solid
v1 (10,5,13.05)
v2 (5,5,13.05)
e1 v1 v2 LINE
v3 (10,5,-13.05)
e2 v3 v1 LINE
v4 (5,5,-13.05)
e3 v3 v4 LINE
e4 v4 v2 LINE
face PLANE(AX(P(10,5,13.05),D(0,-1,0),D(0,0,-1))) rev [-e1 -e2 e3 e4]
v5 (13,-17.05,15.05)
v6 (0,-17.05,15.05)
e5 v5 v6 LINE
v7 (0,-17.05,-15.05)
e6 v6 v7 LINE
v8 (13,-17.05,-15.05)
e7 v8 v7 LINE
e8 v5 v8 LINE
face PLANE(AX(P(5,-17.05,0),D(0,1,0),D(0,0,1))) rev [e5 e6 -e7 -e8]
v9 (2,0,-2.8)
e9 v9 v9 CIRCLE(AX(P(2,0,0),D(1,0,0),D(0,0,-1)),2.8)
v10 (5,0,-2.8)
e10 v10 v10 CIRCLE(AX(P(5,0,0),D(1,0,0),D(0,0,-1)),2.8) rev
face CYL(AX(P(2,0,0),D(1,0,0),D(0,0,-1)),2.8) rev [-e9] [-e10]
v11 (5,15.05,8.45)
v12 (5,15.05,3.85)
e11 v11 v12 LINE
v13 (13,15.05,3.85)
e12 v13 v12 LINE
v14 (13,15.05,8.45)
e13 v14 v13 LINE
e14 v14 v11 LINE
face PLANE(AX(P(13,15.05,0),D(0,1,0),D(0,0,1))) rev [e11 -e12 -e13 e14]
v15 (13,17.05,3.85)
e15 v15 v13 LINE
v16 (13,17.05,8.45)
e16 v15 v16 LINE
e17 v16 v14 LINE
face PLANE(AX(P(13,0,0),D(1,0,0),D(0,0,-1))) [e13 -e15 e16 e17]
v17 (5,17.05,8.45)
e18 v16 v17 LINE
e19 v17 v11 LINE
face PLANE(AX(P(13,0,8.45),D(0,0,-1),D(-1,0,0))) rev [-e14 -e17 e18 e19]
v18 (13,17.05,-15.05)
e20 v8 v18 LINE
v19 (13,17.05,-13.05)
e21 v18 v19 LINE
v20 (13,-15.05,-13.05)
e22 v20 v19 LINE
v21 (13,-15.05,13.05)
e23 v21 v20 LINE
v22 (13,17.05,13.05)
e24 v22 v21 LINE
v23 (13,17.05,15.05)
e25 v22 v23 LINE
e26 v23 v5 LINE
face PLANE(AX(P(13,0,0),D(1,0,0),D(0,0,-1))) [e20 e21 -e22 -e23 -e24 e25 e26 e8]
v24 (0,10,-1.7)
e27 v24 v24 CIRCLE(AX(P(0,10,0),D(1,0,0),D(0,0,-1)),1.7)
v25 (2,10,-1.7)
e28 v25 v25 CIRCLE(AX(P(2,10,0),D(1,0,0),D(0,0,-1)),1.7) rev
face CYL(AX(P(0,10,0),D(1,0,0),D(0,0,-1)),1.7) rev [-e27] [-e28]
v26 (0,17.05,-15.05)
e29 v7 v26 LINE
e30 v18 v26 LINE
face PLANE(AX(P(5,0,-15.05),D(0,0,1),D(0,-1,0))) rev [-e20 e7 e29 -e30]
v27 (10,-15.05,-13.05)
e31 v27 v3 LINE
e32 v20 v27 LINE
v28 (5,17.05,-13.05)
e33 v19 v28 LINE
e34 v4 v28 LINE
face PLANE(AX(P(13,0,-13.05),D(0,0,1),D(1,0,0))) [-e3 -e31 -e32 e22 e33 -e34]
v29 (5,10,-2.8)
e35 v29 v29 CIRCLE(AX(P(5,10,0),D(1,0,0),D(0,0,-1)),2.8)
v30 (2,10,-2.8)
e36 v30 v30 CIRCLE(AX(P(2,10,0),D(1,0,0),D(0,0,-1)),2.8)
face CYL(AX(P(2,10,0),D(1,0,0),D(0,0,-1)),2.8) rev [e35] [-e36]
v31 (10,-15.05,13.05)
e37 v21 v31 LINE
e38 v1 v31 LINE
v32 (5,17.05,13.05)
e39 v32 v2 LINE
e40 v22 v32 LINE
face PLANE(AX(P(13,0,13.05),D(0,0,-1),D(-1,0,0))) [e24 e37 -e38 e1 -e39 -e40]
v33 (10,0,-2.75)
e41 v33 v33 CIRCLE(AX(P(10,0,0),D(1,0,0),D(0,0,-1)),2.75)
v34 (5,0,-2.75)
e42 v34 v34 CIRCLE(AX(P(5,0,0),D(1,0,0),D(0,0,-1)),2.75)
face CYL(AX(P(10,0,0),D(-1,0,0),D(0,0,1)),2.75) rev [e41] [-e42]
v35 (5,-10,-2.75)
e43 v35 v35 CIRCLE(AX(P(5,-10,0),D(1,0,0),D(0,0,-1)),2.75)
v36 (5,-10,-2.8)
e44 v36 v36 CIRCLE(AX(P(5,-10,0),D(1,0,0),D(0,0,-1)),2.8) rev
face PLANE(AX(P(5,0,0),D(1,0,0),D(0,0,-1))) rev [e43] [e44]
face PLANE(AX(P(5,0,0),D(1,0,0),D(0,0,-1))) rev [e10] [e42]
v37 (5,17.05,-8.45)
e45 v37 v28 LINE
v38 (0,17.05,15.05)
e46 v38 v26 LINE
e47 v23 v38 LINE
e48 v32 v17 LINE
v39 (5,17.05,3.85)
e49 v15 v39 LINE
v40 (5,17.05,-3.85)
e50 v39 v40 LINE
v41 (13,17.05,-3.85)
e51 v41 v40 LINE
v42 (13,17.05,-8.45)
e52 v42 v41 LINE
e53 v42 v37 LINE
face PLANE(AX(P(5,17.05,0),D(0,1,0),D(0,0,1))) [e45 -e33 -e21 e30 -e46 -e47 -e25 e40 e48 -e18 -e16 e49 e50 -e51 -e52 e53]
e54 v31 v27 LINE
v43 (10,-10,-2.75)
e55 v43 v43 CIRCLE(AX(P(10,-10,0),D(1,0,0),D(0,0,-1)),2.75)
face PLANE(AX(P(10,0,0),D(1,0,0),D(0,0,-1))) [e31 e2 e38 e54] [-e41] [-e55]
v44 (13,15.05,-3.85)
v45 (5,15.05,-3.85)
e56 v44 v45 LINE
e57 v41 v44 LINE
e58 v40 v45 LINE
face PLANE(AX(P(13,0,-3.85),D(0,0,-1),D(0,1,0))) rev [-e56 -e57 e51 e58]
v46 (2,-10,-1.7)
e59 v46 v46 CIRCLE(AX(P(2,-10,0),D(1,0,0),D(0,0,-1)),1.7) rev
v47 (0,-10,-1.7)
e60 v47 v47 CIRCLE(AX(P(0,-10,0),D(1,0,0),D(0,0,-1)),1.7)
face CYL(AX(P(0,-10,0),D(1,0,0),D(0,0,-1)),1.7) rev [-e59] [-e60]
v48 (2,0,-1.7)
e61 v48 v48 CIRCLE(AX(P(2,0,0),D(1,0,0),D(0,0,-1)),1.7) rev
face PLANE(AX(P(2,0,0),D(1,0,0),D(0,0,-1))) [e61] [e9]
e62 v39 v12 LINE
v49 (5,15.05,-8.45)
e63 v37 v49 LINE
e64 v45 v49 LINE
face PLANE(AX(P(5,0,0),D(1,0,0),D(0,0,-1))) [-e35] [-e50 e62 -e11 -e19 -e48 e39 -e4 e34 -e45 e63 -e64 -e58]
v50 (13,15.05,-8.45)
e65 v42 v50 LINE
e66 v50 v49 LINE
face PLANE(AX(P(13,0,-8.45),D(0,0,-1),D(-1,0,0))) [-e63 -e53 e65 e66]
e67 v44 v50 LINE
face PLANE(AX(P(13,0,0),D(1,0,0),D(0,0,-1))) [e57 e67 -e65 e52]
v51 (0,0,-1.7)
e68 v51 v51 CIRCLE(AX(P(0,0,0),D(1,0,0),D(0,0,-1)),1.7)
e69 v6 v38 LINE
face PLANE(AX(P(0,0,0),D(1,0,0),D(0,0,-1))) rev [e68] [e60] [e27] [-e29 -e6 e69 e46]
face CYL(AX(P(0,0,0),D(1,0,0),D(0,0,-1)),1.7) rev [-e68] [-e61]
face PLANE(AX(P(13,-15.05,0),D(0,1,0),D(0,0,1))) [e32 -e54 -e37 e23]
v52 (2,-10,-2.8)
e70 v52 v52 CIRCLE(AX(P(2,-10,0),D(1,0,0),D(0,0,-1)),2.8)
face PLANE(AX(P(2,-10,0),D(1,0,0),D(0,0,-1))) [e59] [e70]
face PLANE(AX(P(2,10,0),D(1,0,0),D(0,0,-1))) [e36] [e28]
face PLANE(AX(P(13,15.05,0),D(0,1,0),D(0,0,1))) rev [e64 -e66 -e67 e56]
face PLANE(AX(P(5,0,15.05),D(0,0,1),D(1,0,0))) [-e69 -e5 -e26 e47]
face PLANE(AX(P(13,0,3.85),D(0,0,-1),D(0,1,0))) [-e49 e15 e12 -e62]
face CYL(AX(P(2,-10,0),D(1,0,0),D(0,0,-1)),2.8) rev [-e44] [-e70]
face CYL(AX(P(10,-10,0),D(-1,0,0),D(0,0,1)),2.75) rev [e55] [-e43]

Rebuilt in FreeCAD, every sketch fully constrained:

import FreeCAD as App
import Part
import Sketcher

V = App.Vector


def add_polygon(sketch, points):
    """Adds a closed chain of lines whose ends are joined by coincident constraints."""
    first, n = sketch.GeometryCount, len(points)
    for a, b in zip(points, points[1:] + points[:1]):
        sketch.addGeometry(Part.LineSegment(App.Vector(*a, 0), App.Vector(*b, 0)), False)
    for i in range(n):
        sketch.addConstraint(Sketcher.Constraint("Coincident", first + i, 2, first + (i + 1) % n, 1))

doc = App.newDocument("Part")
params = doc.addObject("Spreadsheet::Sheet", "Params")
for row, (alias, value) in enumerate([
    ("sketch1_width", "34.1 mm"),
    ("sketch1_height", "30.1 mm"),
    ("pad1_length", "5 mm"),
    ("sketch2_width", "2 mm"),
    ("sketch2_width2", "34.1 mm"),
    ("sketch2_width3", "32.1 mm"),
    ("sketch2_height", "26.1 mm"),
    ("sketch2_height2", "4.6 mm"),
    ("pad2_length", "8 mm"),
    ("sketch3_diameter", "3.4 mm"),
    ("sketch4_diameter", "5.6 mm"),
    ("pocket2_length", "3 mm"),
    ("sketch5_diameter", "5.5 mm"),
    ("sketch5_height", "26.1 mm"),
    ("sketch5_width", "20.05 mm"),
    ("pad3_length", "5 mm"),
], start=1):
    params.set(f"A{row}", alias)
    params.set(f"B{row}", "=" + value)
    params.setAlias(f"B{row}", alias)

body = doc.addObject("PartDesign::Body", "Body")

# Sketch on YZ plane
sketch1 = doc.addObject("Sketcher::SketchObject", "Sketch")
body.addObject(sketch1)
sketch1.AttachmentSupport = (doc.YZ_Plane, [""])
sketch1.MapMode = "FlatFace"
add_polygon(sketch1, [(17, 15), (-17, 15), (-17, -15), (17, -15)])  # lines 0-3
sketch1.addConstraint(Sketcher.Constraint("Horizontal", 0))
sketch1.addConstraint(Sketcher.Constraint("Vertical", 1))
sketch1.addConstraint(Sketcher.Constraint("Horizontal", 2))
sketch1.addConstraint(Sketcher.Constraint("Vertical", 3))
sketch1.addConstraint(Sketcher.Constraint("Symmetric", 0, 2, 2, 2, -1, 1))
sketch1.addConstraint(Sketcher.Constraint("DistanceX", 0, 2, 0, 1, 34.1))
sketch1.addConstraint(Sketcher.Constraint("DistanceY", 1, 2, 1, 1, 30.1))
sketch1.setExpression("Constraints[9]", "Params.sketch1_width")
sketch1.setExpression("Constraints[10]", "Params.sketch1_height")
pad1 = doc.addObject("PartDesign::Pad", "Pad")
body.addObject(pad1)
pad1.Profile = sketch1
pad1.setExpression("Length", "Params.pad1_length")

# Sketch on YZ plane
sketch2 = doc.addObject("Sketcher::SketchObject", "Sketch001")
body.addObject(sketch2)
sketch2.AttachmentSupport = (doc.YZ_Plane, [""])
sketch2.MapMode = "FlatFace"
sketch2.AttachmentOffset = App.Placement(V(0, 0, 5), App.Rotation())
add_polygon(sketch2, [(-17.1, -15.1), (17.1, -15.1), (17.1, -13.1), (-15.1, -13.1), (-15.1, 13.1), (17.1, 13.1), (17.1, 15.1), (-17.1, 15.1)])  # lines 0-7
add_polygon(sketch2, [(17.1, -3.9), (15.1, -3.9), (15.1, -8.4), (17.1, -8.4)])  # lines 8-11
add_polygon(sketch2, [(17.1, 8.4), (15.1, 8.4), (15.1, 3.9), (17.1, 3.9)])  # lines 12-15
sketch2.addConstraint(Sketcher.Constraint("Horizontal", 0))
sketch2.addConstraint(Sketcher.Constraint("Vertical", 1))
sketch2.addConstraint(Sketcher.Constraint("Horizontal", 2))
sketch2.addConstraint(Sketcher.Constraint("Vertical", 3))
sketch2.addConstraint(Sketcher.Constraint("Horizontal", 4))
sketch2.addConstraint(Sketcher.Constraint("Vertical", 5))
sketch2.addConstraint(Sketcher.Constraint("Horizontal", 6))
sketch2.addConstraint(Sketcher.Constraint("Vertical", 7))
sketch2.addConstraint(Sketcher.Constraint("Horizontal", 8))
sketch2.addConstraint(Sketcher.Constraint("Vertical", 9))
sketch2.addConstraint(Sketcher.Constraint("Horizontal", 10))
sketch2.addConstraint(Sketcher.Constraint("Vertical", 11))
sketch2.addConstraint(Sketcher.Constraint("Horizontal", 12))
sketch2.addConstraint(Sketcher.Constraint("Vertical", 13))
sketch2.addConstraint(Sketcher.Constraint("Horizontal", 14))
sketch2.addConstraint(Sketcher.Constraint("Vertical", 15))
sketch2.addConstraint(Sketcher.Constraint("Symmetric", 0, 2, 6, 2, -1, 1))
sketch2.addConstraint(Sketcher.Constraint("Symmetric", 1, 2, 4, 2, -1))
sketch2.addConstraint(Sketcher.Constraint("Symmetric", 9, 2, 12, 2, -1))
sketch2.addConstraint(Sketcher.Constraint("Symmetric", 11, 2, 14, 2, -1))
sketch2.addConstraint(Sketcher.Constraint("Vertical", 5, 2, 10, 2))
sketch2.addConstraint(Sketcher.Constraint("Equal", 14, 1))
sketch2.addConstraint(Sketcher.Constraint("DistanceX", 8, 2, 8, 1, 2.0))
sketch2.addConstraint(Sketcher.Constraint("DistanceX", 0, 1, 0, 2, 34.1))
sketch2.addConstraint(Sketcher.Constraint("DistanceX", 2, 2, 2, 1, 32.1))
sketch2.addConstraint(Sketcher.Constraint("DistanceY", 3, 1, 3, 2, 26.1))
sketch2.addConstraint(Sketcher.Constraint("DistanceY", 9, 2, 9, 1, 4.6))
sketch2.addConstraint(Sketcher.Constraint("DistanceY", 1, 2, 8, 2, 9.2))
sketch2.setExpression("Constraints[38]", "Params.sketch2_width")
sketch2.setExpression("Constraints[39]", "Params.sketch2_width2")
sketch2.setExpression("Constraints[40]", "Params.sketch2_width3")
sketch2.setExpression("Constraints[41]", "Params.sketch2_height")
sketch2.setExpression("Constraints[42]", "Params.sketch2_height2")
pad2 = doc.addObject("PartDesign::Pad", "Pad001")
body.addObject(pad2)
pad2.Profile = sketch2
pad2.setExpression("Length", "Params.pad2_length")

# Sketch on YZ plane
sketch3 = doc.addObject("Sketcher::SketchObject", "Sketch002")
body.addObject(sketch3)
sketch3.AttachmentSupport = (doc.YZ_Plane, [""])
sketch3.MapMode = "FlatFace"
sketch3.AttachmentOffset = App.Placement(V(0, 0, 5), App.Rotation())
sketch3.addGeometry(Part.Circle(V(-10, 0, 0), V(0, 0, 1), 1.7), False)
sketch3.addGeometry(Part.Circle(V(0, 0, 0), V(0, 0, 1), 1.7), False)
sketch3.addGeometry(Part.Circle(V(10, 0, 0), V(0, 0, 1), 1.7), False)
sketch3.addConstraint(Sketcher.Constraint("Coincident", 1, 3, -1, 1))
sketch3.addConstraint(Sketcher.Constraint("Equal", 0, 1))
sketch3.addConstraint(Sketcher.Constraint("Equal", 1, 2))
sketch3.addConstraint(Sketcher.Constraint("Symmetric", 0, 3, 2, 3, -1, 1))
sketch3.addConstraint(Sketcher.Constraint("PointOnObject", 0, 3, -1))
sketch3.addConstraint(Sketcher.Constraint("Diameter", 0, 3.4))
sketch3.addConstraint(Sketcher.Constraint("DistanceX", 0, 3, -1, 1, 10.0))
sketch3.setExpression("Constraints[5]", "Params.sketch3_diameter")
pocket1 = doc.addObject("PartDesign::Pocket", "Pocket")
body.addObject(pocket1)
pocket1.Profile = sketch3
pocket1.Type = "ThroughAll"

# Sketch on YZ plane
sketch4 = doc.addObject("Sketcher::SketchObject", "Sketch003")
body.addObject(sketch4)
sketch4.AttachmentSupport = (doc.YZ_Plane, [""])
sketch4.MapMode = "FlatFace"
sketch4.AttachmentOffset = App.Placement(V(0, 0, 5), App.Rotation())
sketch4.addGeometry(Part.Circle(V(-10, 0, 0), V(0, 0, 1), 2.8), False)
sketch4.addGeometry(Part.Circle(V(0, 0, 0), V(0, 0, 1), 2.8), False)
sketch4.addGeometry(Part.Circle(V(10, 0, 0), V(0, 0, 1), 2.8), False)
sketch4.addConstraint(Sketcher.Constraint("Coincident", 1, 3, -1, 1))
sketch4.addConstraint(Sketcher.Constraint("Equal", 0, 1))
sketch4.addConstraint(Sketcher.Constraint("Equal", 1, 2))
sketch4.addConstraint(Sketcher.Constraint("Symmetric", 0, 3, 2, 3, -1, 1))
sketch4.addConstraint(Sketcher.Constraint("PointOnObject", 0, 3, -1))
sketch4.addConstraint(Sketcher.Constraint("Diameter", 0, 5.6))
sketch4.addConstraint(Sketcher.Constraint("DistanceX", 0, 3, -1, 1, 10.0))
sketch4.setExpression("Constraints[5]", "Params.sketch4_diameter")
pocket2 = doc.addObject("PartDesign::Pocket", "Pocket001")
body.addObject(pocket2)
pocket2.Profile = sketch4
pocket2.setExpression("Length", "Params.pocket2_length")

# Sketch on YZ plane
sketch5 = doc.addObject("Sketcher::SketchObject", "Sketch004")
body.addObject(sketch5)
sketch5.AttachmentSupport = (doc.YZ_Plane, [""])
sketch5.MapMode = "FlatFace"
sketch5.AttachmentOffset = App.Placement(V(0, 0, 5), App.Rotation())
add_polygon(sketch5, [(5, 13.1), (-15.1, 13.1), (-15.1, -13.1), (5, -13.1)])  # lines 0-3
sketch5.addGeometry(Part.Circle(V(-10, 0, 0), V(0, 0, 1), 2.8), False)  # 4
sketch5.addGeometry(Part.Circle(V(0, 0, 0), V(0, 0, 1), 2.8), False)  # 5
sketch5.addConstraint(Sketcher.Constraint("Horizontal", 0))
sketch5.addConstraint(Sketcher.Constraint("Vertical", 1))
sketch5.addConstraint(Sketcher.Constraint("Horizontal", 2))
sketch5.addConstraint(Sketcher.Constraint("Vertical", 3))
sketch5.addConstraint(Sketcher.Constraint("Coincident", 5, 3, -1, 1))
sketch5.addConstraint(Sketcher.Constraint("Equal", 4, 5))
sketch5.addConstraint(Sketcher.Constraint("PointOnObject", 4, 3, -1))
sketch5.addConstraint(Sketcher.Constraint("Diameter", 4, 5.5))
sketch5.addConstraint(Sketcher.Constraint("DistanceY", 1, 2, 1, 1, 26.1))
sketch5.addConstraint(Sketcher.Constraint("DistanceX", 4, 3, -1, 1, 10.0))
sketch5.addConstraint(Sketcher.Constraint("DistanceX", -1, 1, 2, 2, 5.0))
sketch5.addConstraint(Sketcher.Constraint("DistanceX", 0, 2, 0, 1, 20.05))
sketch5.addConstraint(Sketcher.Constraint("DistanceY", -1, 1, 0, 2, 13.05))
sketch5.setExpression("Constraints[11]", "Params.sketch5_diameter")
sketch5.setExpression("Constraints[12]", "Params.sketch5_height")
sketch5.setExpression("Constraints[15]", "Params.sketch5_width")
pad3 = doc.addObject("PartDesign::Pad", "Pad002")
body.addObject(pad3)
pad3.Profile = sketch5
pad3.setExpression("Length", "Params.pad3_length")

doc.recompute()
